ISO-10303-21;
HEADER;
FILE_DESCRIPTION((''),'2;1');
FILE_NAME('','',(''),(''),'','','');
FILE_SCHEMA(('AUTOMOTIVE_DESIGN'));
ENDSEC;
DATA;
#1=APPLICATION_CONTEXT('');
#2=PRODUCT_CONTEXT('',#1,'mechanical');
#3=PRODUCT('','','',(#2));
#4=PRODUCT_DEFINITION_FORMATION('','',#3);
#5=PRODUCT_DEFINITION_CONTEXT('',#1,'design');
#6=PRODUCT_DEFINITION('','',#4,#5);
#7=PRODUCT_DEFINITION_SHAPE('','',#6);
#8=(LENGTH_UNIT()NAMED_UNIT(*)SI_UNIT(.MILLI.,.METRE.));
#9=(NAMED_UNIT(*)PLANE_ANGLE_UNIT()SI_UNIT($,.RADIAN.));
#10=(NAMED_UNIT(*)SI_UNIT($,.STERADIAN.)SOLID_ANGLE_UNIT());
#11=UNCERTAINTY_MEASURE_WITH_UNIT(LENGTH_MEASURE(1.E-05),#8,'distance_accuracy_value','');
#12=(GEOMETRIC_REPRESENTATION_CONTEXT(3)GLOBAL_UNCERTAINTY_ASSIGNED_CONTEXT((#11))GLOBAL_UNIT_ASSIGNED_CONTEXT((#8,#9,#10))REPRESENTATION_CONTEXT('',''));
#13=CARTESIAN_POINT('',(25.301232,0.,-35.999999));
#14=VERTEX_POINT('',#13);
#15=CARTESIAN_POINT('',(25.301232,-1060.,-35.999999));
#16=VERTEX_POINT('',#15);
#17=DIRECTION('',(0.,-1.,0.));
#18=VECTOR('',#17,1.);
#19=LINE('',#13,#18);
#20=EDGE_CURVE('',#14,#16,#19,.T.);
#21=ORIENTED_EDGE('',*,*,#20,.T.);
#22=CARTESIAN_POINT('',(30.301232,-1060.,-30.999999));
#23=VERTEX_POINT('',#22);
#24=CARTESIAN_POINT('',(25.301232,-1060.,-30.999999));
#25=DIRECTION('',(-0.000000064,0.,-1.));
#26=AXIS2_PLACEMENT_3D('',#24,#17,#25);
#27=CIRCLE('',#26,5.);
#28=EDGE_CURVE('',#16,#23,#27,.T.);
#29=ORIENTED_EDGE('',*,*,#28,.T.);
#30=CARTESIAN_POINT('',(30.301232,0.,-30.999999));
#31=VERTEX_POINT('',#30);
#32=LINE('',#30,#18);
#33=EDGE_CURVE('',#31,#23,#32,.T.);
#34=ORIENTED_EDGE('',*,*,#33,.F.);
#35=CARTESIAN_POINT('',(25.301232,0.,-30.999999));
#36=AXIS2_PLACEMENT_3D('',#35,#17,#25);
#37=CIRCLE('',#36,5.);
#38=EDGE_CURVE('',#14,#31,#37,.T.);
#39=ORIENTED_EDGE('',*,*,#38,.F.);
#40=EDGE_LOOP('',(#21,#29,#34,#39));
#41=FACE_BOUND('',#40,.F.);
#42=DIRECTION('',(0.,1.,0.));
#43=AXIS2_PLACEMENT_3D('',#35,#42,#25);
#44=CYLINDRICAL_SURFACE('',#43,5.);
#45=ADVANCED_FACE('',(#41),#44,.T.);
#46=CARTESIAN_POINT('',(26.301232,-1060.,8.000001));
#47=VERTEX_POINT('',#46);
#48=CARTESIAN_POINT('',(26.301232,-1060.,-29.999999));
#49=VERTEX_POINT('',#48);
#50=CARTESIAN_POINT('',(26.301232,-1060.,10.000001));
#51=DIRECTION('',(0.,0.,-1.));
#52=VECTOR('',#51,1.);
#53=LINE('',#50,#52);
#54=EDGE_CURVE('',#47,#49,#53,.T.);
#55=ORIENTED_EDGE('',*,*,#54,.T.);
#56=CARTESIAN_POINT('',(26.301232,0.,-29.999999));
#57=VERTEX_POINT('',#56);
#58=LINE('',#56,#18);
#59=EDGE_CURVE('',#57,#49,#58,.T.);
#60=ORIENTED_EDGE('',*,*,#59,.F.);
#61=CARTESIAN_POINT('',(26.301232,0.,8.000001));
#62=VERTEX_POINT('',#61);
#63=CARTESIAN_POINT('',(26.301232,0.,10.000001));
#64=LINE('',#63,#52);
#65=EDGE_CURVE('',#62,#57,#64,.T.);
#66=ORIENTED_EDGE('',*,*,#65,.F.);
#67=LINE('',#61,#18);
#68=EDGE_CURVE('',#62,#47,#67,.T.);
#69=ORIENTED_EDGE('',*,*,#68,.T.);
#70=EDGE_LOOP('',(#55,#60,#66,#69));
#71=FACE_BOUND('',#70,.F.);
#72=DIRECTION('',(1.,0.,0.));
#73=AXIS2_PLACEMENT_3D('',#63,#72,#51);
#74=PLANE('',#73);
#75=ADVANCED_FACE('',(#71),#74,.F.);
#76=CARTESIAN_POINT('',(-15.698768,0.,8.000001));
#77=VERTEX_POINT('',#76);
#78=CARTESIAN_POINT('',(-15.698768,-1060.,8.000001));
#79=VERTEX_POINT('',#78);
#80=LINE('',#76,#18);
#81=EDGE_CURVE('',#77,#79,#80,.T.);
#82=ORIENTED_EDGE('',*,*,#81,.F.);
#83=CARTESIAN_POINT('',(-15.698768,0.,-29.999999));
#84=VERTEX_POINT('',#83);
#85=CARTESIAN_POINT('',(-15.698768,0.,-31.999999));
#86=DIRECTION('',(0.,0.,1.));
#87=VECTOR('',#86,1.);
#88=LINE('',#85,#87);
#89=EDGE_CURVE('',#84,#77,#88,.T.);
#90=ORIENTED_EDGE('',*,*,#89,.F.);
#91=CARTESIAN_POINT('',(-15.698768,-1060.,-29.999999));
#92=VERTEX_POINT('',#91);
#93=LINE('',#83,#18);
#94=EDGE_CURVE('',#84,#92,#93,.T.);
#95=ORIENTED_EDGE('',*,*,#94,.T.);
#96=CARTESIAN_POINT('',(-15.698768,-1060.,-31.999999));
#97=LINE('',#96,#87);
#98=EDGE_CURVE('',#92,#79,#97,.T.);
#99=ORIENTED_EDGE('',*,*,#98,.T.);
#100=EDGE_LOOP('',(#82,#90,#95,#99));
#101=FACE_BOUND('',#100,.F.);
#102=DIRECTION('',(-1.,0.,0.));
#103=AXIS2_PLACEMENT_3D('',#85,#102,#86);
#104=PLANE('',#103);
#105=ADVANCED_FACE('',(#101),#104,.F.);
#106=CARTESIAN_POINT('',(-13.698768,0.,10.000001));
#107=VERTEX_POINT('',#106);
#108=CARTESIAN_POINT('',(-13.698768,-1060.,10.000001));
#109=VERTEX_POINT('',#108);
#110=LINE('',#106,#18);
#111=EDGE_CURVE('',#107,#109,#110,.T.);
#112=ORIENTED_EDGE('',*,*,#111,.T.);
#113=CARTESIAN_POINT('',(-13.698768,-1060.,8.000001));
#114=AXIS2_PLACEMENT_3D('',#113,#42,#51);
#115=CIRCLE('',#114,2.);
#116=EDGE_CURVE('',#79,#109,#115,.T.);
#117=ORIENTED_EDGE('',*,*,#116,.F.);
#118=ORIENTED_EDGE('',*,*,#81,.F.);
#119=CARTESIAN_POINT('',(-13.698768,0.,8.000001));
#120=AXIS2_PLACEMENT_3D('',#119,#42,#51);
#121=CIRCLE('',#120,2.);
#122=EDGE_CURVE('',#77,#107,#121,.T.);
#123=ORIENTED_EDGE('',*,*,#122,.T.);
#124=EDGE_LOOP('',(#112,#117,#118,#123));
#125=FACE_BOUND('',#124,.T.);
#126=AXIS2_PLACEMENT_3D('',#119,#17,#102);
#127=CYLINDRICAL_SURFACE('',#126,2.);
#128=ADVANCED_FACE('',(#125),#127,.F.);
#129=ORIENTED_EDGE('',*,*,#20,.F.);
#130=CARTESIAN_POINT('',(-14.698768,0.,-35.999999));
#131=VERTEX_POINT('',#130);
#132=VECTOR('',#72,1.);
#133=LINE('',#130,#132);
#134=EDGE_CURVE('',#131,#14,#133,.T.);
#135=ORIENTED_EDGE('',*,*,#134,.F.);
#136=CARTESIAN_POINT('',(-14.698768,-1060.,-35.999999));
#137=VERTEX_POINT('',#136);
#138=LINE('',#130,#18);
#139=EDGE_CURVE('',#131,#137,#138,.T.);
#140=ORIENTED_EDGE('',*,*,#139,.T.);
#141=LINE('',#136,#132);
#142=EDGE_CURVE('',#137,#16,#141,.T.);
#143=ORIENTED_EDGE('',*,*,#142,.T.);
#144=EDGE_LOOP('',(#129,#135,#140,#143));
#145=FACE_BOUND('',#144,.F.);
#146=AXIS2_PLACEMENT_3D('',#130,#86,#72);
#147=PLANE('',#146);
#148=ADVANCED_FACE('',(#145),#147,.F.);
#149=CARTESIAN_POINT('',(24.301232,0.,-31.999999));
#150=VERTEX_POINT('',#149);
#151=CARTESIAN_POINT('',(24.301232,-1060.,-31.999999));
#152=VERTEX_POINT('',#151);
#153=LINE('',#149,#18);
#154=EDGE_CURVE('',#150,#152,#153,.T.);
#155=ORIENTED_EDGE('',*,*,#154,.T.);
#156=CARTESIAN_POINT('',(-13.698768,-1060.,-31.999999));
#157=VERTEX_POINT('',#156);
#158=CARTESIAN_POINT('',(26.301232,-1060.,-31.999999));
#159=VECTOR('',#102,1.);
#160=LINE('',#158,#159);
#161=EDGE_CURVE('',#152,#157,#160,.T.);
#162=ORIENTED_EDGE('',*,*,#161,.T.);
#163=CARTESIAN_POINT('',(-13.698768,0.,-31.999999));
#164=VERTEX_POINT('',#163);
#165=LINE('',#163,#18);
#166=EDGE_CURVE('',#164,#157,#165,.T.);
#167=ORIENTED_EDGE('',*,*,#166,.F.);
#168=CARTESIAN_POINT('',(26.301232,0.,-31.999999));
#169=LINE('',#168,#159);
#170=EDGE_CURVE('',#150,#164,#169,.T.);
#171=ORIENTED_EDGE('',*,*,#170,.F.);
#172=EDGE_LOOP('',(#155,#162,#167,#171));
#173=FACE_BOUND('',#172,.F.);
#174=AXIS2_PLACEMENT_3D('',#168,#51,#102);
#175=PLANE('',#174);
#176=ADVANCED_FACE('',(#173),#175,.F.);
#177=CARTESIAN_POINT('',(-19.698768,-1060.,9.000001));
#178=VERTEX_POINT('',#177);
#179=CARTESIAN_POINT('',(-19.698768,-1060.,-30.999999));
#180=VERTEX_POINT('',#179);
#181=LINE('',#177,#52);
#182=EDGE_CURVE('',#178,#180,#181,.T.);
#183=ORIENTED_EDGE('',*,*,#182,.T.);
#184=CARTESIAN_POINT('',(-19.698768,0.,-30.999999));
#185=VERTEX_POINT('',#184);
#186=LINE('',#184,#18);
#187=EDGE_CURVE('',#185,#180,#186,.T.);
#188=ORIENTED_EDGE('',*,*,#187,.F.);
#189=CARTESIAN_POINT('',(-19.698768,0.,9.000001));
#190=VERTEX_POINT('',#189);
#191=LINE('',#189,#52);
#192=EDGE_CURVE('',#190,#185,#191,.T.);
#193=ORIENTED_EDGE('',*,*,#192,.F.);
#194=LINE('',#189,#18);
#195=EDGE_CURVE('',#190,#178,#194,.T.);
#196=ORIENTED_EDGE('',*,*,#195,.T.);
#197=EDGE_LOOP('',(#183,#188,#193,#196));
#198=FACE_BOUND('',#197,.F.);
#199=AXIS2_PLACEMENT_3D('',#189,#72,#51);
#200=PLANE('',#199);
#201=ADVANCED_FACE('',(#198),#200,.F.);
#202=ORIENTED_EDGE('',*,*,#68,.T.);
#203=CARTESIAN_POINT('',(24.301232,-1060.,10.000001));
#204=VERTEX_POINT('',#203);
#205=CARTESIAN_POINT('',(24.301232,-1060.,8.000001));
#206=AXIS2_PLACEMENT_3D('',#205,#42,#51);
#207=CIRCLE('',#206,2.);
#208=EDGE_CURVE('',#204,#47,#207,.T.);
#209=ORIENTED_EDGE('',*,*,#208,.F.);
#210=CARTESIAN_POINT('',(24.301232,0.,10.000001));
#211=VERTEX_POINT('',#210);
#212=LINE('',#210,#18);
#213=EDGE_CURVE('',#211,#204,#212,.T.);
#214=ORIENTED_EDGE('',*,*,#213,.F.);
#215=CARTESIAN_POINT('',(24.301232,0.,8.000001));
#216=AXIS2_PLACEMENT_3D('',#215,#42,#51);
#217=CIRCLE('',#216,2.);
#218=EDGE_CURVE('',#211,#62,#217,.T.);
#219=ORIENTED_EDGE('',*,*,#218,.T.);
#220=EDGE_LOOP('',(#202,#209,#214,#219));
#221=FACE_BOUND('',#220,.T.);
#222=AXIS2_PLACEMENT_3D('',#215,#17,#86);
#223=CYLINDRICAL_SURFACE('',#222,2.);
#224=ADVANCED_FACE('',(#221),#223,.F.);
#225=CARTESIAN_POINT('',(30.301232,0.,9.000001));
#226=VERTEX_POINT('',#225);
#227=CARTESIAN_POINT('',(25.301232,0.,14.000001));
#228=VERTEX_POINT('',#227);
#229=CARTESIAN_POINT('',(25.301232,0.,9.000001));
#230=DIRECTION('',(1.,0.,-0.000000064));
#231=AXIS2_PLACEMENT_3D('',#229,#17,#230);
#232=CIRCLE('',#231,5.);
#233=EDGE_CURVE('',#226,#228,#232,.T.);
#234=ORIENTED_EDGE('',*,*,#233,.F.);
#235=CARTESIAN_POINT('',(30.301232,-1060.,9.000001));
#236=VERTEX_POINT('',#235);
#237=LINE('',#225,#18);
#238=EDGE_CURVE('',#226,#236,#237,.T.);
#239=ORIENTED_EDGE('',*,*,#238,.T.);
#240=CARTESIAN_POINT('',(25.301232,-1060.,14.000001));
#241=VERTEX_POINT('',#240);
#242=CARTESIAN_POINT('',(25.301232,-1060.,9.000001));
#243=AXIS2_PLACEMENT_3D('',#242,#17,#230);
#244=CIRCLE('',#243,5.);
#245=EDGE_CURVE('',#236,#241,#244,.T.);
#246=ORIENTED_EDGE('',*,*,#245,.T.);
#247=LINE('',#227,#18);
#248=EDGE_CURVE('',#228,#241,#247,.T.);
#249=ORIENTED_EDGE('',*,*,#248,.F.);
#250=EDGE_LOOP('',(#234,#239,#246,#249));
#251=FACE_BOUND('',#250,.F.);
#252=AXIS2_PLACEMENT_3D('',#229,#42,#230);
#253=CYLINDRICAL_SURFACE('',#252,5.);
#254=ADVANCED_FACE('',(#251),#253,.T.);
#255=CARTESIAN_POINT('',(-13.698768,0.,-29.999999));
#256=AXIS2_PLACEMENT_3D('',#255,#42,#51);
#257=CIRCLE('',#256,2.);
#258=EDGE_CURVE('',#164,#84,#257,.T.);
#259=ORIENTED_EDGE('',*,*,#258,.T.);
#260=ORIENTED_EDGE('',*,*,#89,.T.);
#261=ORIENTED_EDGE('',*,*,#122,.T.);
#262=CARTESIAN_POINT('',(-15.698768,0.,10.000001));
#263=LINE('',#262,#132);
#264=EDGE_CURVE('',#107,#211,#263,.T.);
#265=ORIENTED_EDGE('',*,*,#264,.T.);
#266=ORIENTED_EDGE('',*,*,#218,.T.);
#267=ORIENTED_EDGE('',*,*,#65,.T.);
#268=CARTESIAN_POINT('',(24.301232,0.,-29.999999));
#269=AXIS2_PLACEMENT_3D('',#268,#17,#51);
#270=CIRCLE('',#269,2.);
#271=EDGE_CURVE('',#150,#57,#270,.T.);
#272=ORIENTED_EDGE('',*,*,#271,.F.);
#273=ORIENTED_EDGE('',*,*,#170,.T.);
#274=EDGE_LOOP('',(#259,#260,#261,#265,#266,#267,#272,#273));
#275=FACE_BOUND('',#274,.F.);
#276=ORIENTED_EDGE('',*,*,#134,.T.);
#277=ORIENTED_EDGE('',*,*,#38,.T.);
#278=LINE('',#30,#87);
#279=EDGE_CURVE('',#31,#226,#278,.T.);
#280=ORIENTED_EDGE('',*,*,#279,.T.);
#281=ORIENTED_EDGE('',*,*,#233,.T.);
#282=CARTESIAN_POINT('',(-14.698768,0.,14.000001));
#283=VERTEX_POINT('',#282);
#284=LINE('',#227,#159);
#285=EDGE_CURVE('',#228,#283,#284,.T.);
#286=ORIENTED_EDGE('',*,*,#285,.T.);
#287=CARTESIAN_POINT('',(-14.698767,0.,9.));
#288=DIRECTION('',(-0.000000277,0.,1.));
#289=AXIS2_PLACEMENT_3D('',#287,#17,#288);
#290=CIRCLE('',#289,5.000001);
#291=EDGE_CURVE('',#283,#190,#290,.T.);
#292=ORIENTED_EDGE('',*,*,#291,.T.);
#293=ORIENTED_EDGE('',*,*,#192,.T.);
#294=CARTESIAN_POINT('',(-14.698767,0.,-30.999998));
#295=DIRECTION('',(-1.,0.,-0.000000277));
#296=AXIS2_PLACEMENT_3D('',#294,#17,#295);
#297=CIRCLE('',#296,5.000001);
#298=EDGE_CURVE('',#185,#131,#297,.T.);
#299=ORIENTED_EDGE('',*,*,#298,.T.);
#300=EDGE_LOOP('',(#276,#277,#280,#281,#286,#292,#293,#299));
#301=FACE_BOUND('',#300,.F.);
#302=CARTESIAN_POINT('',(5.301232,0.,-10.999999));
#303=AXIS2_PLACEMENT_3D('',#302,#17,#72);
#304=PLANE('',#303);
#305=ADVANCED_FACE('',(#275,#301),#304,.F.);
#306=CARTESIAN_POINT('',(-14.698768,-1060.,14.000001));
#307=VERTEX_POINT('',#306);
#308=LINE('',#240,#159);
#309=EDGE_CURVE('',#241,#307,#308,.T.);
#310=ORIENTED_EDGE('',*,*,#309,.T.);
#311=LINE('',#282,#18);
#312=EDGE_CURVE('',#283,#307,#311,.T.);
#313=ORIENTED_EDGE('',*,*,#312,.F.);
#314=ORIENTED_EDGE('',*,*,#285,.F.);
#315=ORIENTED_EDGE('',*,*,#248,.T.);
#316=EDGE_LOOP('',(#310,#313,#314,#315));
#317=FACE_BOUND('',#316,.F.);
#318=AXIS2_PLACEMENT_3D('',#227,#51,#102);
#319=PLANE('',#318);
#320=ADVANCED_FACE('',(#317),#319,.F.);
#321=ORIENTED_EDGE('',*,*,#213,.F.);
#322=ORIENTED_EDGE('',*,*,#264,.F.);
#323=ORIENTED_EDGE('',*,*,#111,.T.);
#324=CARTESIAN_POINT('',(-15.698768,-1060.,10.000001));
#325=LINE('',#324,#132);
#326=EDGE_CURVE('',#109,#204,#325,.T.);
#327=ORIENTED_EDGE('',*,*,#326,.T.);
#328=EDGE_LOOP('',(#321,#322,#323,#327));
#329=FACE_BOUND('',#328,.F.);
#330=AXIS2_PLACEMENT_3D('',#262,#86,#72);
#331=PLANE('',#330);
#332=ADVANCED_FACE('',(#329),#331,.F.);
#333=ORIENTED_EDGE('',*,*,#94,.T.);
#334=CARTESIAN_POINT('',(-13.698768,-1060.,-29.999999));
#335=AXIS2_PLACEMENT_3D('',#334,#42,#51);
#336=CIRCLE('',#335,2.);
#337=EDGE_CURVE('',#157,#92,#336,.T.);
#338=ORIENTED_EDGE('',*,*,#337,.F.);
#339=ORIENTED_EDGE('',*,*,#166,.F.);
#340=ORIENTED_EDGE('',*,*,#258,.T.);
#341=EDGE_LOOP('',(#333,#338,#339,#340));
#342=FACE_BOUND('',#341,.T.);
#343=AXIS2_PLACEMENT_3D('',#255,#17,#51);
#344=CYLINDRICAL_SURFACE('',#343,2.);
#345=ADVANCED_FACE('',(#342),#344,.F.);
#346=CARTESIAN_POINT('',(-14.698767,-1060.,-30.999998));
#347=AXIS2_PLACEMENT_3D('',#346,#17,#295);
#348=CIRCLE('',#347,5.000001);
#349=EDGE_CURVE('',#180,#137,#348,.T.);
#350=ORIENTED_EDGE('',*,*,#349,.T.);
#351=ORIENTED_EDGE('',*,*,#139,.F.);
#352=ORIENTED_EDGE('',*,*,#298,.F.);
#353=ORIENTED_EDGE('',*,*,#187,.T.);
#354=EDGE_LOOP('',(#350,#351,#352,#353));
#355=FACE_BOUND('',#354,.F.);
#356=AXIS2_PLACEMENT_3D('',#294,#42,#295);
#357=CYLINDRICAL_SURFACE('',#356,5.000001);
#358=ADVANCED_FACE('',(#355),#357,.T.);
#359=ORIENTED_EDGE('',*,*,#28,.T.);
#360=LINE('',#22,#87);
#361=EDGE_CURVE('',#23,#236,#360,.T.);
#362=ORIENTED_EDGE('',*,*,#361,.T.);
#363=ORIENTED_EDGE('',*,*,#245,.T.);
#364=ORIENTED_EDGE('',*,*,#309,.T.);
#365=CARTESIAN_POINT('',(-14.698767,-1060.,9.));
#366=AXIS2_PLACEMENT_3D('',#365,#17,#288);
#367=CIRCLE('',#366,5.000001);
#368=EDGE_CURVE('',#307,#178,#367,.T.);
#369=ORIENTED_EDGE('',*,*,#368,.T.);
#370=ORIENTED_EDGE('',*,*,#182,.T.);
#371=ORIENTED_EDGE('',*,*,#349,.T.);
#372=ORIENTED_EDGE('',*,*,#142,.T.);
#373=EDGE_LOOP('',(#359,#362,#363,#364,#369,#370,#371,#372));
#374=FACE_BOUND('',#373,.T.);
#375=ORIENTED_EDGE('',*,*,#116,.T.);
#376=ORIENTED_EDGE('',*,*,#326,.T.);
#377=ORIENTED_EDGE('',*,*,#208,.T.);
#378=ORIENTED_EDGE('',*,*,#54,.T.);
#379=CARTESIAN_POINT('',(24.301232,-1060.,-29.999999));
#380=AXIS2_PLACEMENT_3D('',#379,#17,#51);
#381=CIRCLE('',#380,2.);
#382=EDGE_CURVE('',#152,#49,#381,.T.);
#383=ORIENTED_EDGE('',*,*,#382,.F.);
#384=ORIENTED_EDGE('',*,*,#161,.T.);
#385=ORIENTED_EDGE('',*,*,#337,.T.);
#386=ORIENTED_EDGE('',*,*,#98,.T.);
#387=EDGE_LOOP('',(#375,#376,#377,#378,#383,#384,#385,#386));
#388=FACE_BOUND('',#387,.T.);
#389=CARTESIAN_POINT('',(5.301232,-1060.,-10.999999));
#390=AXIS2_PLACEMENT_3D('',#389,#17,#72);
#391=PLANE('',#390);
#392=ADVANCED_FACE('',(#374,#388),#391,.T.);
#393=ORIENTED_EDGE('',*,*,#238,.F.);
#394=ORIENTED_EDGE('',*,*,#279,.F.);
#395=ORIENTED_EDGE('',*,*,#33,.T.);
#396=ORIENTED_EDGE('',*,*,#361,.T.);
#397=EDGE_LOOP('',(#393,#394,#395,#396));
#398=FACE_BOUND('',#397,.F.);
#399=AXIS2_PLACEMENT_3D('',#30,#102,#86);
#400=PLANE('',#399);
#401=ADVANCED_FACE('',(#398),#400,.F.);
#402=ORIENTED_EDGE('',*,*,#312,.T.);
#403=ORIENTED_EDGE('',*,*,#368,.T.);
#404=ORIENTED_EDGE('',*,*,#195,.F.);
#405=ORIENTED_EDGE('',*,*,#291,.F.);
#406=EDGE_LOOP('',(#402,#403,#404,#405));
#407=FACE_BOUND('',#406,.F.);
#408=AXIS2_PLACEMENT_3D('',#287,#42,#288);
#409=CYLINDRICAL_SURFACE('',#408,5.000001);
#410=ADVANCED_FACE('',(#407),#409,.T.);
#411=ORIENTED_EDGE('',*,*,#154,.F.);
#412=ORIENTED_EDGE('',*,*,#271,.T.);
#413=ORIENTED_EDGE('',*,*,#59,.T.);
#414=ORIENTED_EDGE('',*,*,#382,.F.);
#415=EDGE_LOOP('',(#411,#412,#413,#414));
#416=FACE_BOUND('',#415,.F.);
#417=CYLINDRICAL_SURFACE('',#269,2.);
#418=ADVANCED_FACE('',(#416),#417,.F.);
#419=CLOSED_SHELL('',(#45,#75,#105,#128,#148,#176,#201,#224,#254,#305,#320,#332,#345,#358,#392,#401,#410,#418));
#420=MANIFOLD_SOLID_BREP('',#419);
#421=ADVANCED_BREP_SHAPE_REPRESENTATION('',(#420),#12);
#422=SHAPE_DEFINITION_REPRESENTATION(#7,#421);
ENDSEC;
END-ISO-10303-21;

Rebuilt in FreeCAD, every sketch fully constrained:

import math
import FreeCAD as App
import Part
import Sketcher

V = App.Vector


def edges_at(feature, points):
    """Names of the edges that pass closest to the given points."""
    edges = feature.Shape.Edges
    near = lambda p: min(range(len(edges)), key=lambda i: edges[i].distToShape(Part.Vertex(*p))[0])
    return sorted({f"Edge{near(p) + 1}" for p in points})

doc = App.newDocument("Part")
params = doc.addObject("Spreadsheet::Sheet", "Params")
for row, (alias, value) in enumerate([
    ("sketch1_radius", "5.000001 mm"),
    ("sketch1_width", "40 mm"),
    ("sketch1_width2", "42 mm"),
    ("pad1_length", "1060 mm"),
    ("fillet_radius", "2 mm"),
], start=1):
    params.set(f"A{row}", alias)
    params.set(f"B{row}", "=" + value)
    params.setAlias(f"B{row}", alias)

body = doc.addObject("PartDesign::Body", "Body")

# Sketch on XZ plane
sketch1 = body.newObject("Sketcher::SketchObject", "Sketch")
sketch1.AttachmentSupport = (doc.getObject("XZ_Plane"), [""])
sketch1.MapMode = "FlatFace"
sketch1.addGeometry(Part.ArcOfCircle(Part.Circle(V(-14.7, 9, 0), V(0, 0, 1), 5), math.radians(90), math.radians(180)), False)
sketch1.addGeometry(Part.LineSegment(V(-19.7, 9, 0), V(-19.7, -31, 0)), False)
sketch1.addGeometry(Part.ArcOfCircle(Part.Circle(V(-14.7, -31, 0), V(0, 0, 1), 5), math.radians(-180), math.radians(-90)), False)
sketch1.addGeometry(Part.LineSegment(V(-14.7, -36, 0), V(25.3, -36, 0)), False)
sketch1.addGeometry(Part.ArcOfCircle(Part.Circle(V(25.3, -31, 0), V(0, 0, 1), 5), math.radians(-90), math.radians(0)), False)
sketch1.addGeometry(Part.LineSegment(V(30.3, -31, 0), V(30.3, 9, 0)), False)
sketch1.addGeometry(Part.ArcOfCircle(Part.Circle(V(25.3, 9, 0), V(0, 0, 1), 5), math.radians(0), math.radians(90)), False)
sketch1.addGeometry(Part.LineSegment(V(25.3, 14, 0), V(-14.7, 14, 0)), False)
sketch1.addGeometry(Part.LineSegment(V(26.3, -32, 0), V(-15.7, -32, 0)), False)
sketch1.addGeometry(Part.LineSegment(V(-15.7, -32, 0), V(-15.7, 10, 0)), False)
sketch1.addGeometry(Part.LineSegment(V(-15.7, 10, 0), V(26.3, 10, 0)), False)
sketch1.addGeometry(Part.LineSegment(V(26.3, 10, 0), V(26.3, -32, 0)), False)
sketch1.addConstraint(Sketcher.Constraint("Tangent", 0, 2, 1, 1))
sketch1.addConstraint(Sketcher.Constraint("Tangent", 1, 2, 2, 1))
sketch1.addConstraint(Sketcher.Constraint("Tangent", 2, 2, 3, 1))
sketch1.addConstraint(Sketcher.Constraint("Tangent", 3, 2, 4, 1))
sketch1.addConstraint(Sketcher.Constraint("Tangent", 4, 2, 5, 1))
sketch1.addConstraint(Sketcher.Constraint("Tangent", 5, 2, 6, 1))
sketch1.addConstraint(Sketcher.Constraint("Tangent", 6, 2, 7, 1))
sketch1.addConstraint(Sketcher.Constraint("Tangent", 7, 2, 0, 1))
sketch1.addConstraint(Sketcher.Constraint("Coincident", 8, 2, 9, 1))
sketch1.addConstraint(Sketcher.Constraint("Coincident", 9, 2, 10, 1))
sketch1.addConstraint(Sketcher.Constraint("Coincident", 10, 2, 11, 1))
sketch1.addConstraint(Sketcher.Constraint("Coincident", 11, 2, 8, 1))
sketch1.addConstraint(Sketcher.Constraint("Vertical", 1))
sketch1.addConstraint(Sketcher.Constraint("Horizontal", 3))
sketch1.addConstraint(Sketcher.Constraint("Vertical", 5))
sketch1.addConstraint(Sketcher.Constraint("Horizontal", 7))
sketch1.addConstraint(Sketcher.Constraint("Horizontal", 8))
sketch1.addConstraint(Sketcher.Constraint("Vertical", 9))
sketch1.addConstraint(Sketcher.Constraint("Horizontal", 10))
sketch1.addConstraint(Sketcher.Constraint("Vertical", 11))
sketch1.addConstraint(Sketcher.Constraint("Equal", 0, 2))
sketch1.addConstraint(Sketcher.Constraint("Equal", 2, 4))
sketch1.addConstraint(Sketcher.Constraint("Equal", 4, 6))
sketch1.addConstraint(Sketcher.Constraint("Equal", 7, 1))
sketch1.addConstraint(Sketcher.Constraint("Equal", 10, 9))
sketch1.addConstraint(Sketcher.Constraint("Radius", 0, 5.000001))
sketch1.addConstraint(Sketcher.Constraint("DistanceX", 3, 1, 3, 2, 40.0))
sketch1.addConstraint(Sketcher.Constraint("DistanceX", 8, 2, 8, 1, 42.0))
sketch1.addConstraint(Sketcher.Constraint("DistanceY", -1, 1, 0, 3, 9.0))
sketch1.addConstraint(Sketcher.Constraint("DistanceY", 8, 2, -1, 1, 31.999999))
sketch1.addConstraint(Sketcher.Constraint("DistanceX", 8, 2, 2, 3, 1.000001))
sketch1.addConstraint(Sketcher.Constraint("DistanceX", 1, 2, -1, 1, 19.698768))
sketch1.setExpression("Constraints[25]", "Params.sketch1_radius")
sketch1.setExpression("Constraints[26]", "Params.sketch1_width")
sketch1.setExpression("Constraints[27]", "Params.sketch1_width2")
pad1 = body.newObject("PartDesign::Pad", "Pad")
pad1.Profile = sketch1
pad1.setExpression("Length", "Params.pad1_length")
doc.recompute()

fillet = body.newObject("PartDesign::Fillet", "Fillet")
fillet.Base = (pad1, edges_at(pad1, [
    (-15.699, -530, 10),
    (26.301, -530, 10),
    (26.301, -530, -32),
    (-15.699, -530, -32),
]))
fillet.setExpression("Radius", "Params.fillet_radius")

doc.recompute()
